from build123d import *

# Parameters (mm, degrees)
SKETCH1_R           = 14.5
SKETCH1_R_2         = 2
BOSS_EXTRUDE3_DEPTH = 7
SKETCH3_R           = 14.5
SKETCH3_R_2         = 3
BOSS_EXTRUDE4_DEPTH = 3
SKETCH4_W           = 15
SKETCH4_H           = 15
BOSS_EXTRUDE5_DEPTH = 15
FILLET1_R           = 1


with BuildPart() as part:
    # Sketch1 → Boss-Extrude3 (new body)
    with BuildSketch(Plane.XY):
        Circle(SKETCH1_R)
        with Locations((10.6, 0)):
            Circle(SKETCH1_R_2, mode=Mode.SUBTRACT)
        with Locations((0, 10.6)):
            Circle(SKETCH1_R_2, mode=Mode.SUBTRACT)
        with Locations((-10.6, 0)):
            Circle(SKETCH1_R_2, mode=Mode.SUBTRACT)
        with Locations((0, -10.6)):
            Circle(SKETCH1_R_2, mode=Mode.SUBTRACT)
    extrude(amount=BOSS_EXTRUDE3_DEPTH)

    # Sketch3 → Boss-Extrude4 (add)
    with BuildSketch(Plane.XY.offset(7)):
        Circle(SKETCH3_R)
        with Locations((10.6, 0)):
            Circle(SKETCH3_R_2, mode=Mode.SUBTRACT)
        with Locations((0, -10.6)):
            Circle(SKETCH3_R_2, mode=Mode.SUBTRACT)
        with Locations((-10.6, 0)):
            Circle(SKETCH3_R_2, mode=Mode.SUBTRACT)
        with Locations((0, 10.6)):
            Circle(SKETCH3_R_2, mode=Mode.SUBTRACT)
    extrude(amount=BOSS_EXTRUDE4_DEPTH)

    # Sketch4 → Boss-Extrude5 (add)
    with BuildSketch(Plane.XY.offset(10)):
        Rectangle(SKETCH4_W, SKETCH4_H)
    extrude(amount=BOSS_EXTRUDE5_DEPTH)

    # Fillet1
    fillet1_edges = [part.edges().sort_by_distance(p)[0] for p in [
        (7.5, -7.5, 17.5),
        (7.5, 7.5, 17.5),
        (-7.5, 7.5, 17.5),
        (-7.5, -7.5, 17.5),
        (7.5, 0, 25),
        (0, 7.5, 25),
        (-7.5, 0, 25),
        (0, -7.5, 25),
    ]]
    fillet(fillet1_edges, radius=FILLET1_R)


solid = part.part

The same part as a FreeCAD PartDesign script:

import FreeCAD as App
import Part
import Sketcher
from FreeCAD import Vector


def edges_at(feature, points):
    """Names of the edges that pass closest to the given points."""
    edges = feature.Shape.Edges
    near = lambda p: min(range(len(edges)), key=lambda i: edges[i].distToShape(Part.Vertex(*p))[0])
    return sorted({f"Edge{near(p) + 1}" for p in points})

doc = App.newDocument("Part")
body = doc.addObject("PartDesign::Body", "Body")

# Sketch on XY plane
sketch1 = body.newObject("Sketcher::SketchObject", "Sketch")
sketch1.AttachmentSupport = (doc.getObject("XY_Plane"), [""])
sketch1.MapMode = "FlatFace"
sketch1.addGeometry([
    Part.Circle(Vector(0, 0, 0), Vector(0, 0, 1), 14.5),  # 0
    Part.Circle(Vector(0, -10.6, 0), Vector(0, 0, 1), 2),  # 1
    Part.Circle(Vector(-10.6, 0, 0), Vector(0, 0, 1), 2),  # 2
    Part.Circle(Vector(0, 10.6, 0), Vector(0, 0, 1), 2),  # 3
    Part.Circle(Vector(10.6, 0, 0), Vector(0, 0, 1), 2),  # 4
], False)
sketch1.addConstraint([
    Sketcher.Constraint("Coincident", 0, 3, -1, 1),
    Sketcher.Constraint("Equal", 1, 2),
    Sketcher.Constraint("Equal", 2, 3),
    Sketcher.Constraint("Equal", 3, 4),
    Sketcher.Constraint("Symmetric", 1, 3, 3, 3, -1, 1),
    Sketcher.Constraint("Symmetric", 2, 3, 4, 3, -1, 1),
    Sketcher.Constraint("PointOnObject", 1, 3, -2),
    Sketcher.Constraint("PointOnObject", 2, 3, -1),
    Sketcher.Constraint("Diameter", 0, 29.0),
    Sketcher.Constraint("Diameter", 1, 4.0),
    Sketcher.Constraint("DistanceY", 1, 3, -1, 1, 10.6),
    Sketcher.Constraint("DistanceX", 2, 3, -1, 1, 10.6),
])
pad1 = body.newObject("PartDesign::Pad", "Pad")
pad1.Profile = sketch1
pad1.Length = 7

# Sketch on XY plane
sketch2 = body.newObject("Sketcher::SketchObject", "Sketch001")
sketch2.AttachmentSupport = (doc.getObject("XY_Plane"), [""])
sketch2.MapMode = "FlatFace"
sketch2.AttachmentOffset = App.Placement(Vector(0, 0, 7), App.Rotation())
sketch2.addGeometry([
    Part.Circle(Vector(0, 0, 0), Vector(0, 0, 1), 14.5),  # 0
    Part.Circle(Vector(0, -10.6, 0), Vector(0, 0, 1), 3),  # 1
    Part.Circle(Vector(-10.6, 0, 0), Vector(0, 0, 1), 3),  # 2
    Part.Circle(Vector(10.6, 0, 0), Vector(0, 0, 1), 3),  # 3
    Part.Circle(Vector(0, 10.6, 0), Vector(0, 0, 1), 3),  # 4
], False)
sketch2.addConstraint([
    Sketcher.Constraint("Coincident", 0, 3, -1, 1),
    Sketcher.Constraint("Equal", 1, 2),
    Sketcher.Constraint("Equal", 2, 3),
    Sketcher.Constraint("Equal", 3, 4),
    Sketcher.Constraint("Symmetric", 2, 3, 3, 3, -1, 1),
    Sketcher.Constraint("Symmetric", 1, 3, 4, 3, -1, 1),
    Sketcher.Constraint("PointOnObject", 1, 3, -2),
    Sketcher.Constraint("PointOnObject", 2, 3, -1),
    Sketcher.Constraint("Diameter", 0, 29.0),
    Sketcher.Constraint("Diameter", 1, 6.0),
    Sketcher.Constraint("DistanceY", 1, 3, -1, 1, 10.6),
    Sketcher.Constraint("DistanceX", 2, 3, -1, 1, 10.6),
])
pad2 = body.newObject("PartDesign::Pad", "Pad001")
pad2.Profile = sketch2
pad2.Length = 3

# Sketch on XY plane
sketch3 = body.newObject("Sketcher::SketchObject", "Sketch002")
sketch3.AttachmentSupport = (doc.getObject("XY_Plane"), [""])
sketch3.MapMode = "FlatFace"
sketch3.AttachmentOffset = App.Placement(Vector(0, 0, 10), App.Rotation())
sketch3.addGeometry([
    Part.LineSegment(Vector(-8, 8, 0), Vector(-8, -8, 0)),
    Part.LineSegment(Vector(-8, -8, 0), Vector(8, -8, 0)),
    Part.LineSegment(Vector(8, -8, 0), Vector(8, 8, 0)),
    Part.LineSegment(Vector(8, 8, 0), Vector(-8, 8, 0)),
], False)
sketch3.addConstraint([
    Sketcher.Constraint("Coincident", 0, 2, 1, 1),
    Sketcher.Constraint("Coincident", 1, 2, 2, 1),
    Sketcher.Constraint("Coincident", 2, 2, 3, 1),
    Sketcher.Constraint("Coincident", 3, 2, 0, 1),
    Sketcher.Constraint("Vertical", 0),
    Sketcher.Constraint("Horizontal", 1),
    Sketcher.Constraint("Vertical", 2),
    Sketcher.Constraint("Horizontal", 3),
    Sketcher.Constraint("Symmetric", 0, 2, 2, 2, -1, 1),
    Sketcher.Constraint("Equal", 3, 0),
    Sketcher.Constraint("DistanceX", 1, 1, 1, 2, 15.0),
])
pad3 = body.newObject("PartDesign::Pad", "Pad002")
pad3.Profile = sketch3
pad3.Length = 15
doc.recompute()

fillet = body.newObject("PartDesign::Fillet", "Fillet")
fillet.Base = (pad3, edges_at(pad3, [
    (7.5, -7.5, 17.5),
    (7.5, 7.5, 17.5),
    (-7.5, 7.5, 17.5),
    (-7.5, -7.5, 17.5),
    (7.5, 0, 25),
    (0, 7.5, 25),
    (-7.5, 0, 25),
    (0, -7.5, 25),
]))
fillet.Radius = 1

doc.recompute()
